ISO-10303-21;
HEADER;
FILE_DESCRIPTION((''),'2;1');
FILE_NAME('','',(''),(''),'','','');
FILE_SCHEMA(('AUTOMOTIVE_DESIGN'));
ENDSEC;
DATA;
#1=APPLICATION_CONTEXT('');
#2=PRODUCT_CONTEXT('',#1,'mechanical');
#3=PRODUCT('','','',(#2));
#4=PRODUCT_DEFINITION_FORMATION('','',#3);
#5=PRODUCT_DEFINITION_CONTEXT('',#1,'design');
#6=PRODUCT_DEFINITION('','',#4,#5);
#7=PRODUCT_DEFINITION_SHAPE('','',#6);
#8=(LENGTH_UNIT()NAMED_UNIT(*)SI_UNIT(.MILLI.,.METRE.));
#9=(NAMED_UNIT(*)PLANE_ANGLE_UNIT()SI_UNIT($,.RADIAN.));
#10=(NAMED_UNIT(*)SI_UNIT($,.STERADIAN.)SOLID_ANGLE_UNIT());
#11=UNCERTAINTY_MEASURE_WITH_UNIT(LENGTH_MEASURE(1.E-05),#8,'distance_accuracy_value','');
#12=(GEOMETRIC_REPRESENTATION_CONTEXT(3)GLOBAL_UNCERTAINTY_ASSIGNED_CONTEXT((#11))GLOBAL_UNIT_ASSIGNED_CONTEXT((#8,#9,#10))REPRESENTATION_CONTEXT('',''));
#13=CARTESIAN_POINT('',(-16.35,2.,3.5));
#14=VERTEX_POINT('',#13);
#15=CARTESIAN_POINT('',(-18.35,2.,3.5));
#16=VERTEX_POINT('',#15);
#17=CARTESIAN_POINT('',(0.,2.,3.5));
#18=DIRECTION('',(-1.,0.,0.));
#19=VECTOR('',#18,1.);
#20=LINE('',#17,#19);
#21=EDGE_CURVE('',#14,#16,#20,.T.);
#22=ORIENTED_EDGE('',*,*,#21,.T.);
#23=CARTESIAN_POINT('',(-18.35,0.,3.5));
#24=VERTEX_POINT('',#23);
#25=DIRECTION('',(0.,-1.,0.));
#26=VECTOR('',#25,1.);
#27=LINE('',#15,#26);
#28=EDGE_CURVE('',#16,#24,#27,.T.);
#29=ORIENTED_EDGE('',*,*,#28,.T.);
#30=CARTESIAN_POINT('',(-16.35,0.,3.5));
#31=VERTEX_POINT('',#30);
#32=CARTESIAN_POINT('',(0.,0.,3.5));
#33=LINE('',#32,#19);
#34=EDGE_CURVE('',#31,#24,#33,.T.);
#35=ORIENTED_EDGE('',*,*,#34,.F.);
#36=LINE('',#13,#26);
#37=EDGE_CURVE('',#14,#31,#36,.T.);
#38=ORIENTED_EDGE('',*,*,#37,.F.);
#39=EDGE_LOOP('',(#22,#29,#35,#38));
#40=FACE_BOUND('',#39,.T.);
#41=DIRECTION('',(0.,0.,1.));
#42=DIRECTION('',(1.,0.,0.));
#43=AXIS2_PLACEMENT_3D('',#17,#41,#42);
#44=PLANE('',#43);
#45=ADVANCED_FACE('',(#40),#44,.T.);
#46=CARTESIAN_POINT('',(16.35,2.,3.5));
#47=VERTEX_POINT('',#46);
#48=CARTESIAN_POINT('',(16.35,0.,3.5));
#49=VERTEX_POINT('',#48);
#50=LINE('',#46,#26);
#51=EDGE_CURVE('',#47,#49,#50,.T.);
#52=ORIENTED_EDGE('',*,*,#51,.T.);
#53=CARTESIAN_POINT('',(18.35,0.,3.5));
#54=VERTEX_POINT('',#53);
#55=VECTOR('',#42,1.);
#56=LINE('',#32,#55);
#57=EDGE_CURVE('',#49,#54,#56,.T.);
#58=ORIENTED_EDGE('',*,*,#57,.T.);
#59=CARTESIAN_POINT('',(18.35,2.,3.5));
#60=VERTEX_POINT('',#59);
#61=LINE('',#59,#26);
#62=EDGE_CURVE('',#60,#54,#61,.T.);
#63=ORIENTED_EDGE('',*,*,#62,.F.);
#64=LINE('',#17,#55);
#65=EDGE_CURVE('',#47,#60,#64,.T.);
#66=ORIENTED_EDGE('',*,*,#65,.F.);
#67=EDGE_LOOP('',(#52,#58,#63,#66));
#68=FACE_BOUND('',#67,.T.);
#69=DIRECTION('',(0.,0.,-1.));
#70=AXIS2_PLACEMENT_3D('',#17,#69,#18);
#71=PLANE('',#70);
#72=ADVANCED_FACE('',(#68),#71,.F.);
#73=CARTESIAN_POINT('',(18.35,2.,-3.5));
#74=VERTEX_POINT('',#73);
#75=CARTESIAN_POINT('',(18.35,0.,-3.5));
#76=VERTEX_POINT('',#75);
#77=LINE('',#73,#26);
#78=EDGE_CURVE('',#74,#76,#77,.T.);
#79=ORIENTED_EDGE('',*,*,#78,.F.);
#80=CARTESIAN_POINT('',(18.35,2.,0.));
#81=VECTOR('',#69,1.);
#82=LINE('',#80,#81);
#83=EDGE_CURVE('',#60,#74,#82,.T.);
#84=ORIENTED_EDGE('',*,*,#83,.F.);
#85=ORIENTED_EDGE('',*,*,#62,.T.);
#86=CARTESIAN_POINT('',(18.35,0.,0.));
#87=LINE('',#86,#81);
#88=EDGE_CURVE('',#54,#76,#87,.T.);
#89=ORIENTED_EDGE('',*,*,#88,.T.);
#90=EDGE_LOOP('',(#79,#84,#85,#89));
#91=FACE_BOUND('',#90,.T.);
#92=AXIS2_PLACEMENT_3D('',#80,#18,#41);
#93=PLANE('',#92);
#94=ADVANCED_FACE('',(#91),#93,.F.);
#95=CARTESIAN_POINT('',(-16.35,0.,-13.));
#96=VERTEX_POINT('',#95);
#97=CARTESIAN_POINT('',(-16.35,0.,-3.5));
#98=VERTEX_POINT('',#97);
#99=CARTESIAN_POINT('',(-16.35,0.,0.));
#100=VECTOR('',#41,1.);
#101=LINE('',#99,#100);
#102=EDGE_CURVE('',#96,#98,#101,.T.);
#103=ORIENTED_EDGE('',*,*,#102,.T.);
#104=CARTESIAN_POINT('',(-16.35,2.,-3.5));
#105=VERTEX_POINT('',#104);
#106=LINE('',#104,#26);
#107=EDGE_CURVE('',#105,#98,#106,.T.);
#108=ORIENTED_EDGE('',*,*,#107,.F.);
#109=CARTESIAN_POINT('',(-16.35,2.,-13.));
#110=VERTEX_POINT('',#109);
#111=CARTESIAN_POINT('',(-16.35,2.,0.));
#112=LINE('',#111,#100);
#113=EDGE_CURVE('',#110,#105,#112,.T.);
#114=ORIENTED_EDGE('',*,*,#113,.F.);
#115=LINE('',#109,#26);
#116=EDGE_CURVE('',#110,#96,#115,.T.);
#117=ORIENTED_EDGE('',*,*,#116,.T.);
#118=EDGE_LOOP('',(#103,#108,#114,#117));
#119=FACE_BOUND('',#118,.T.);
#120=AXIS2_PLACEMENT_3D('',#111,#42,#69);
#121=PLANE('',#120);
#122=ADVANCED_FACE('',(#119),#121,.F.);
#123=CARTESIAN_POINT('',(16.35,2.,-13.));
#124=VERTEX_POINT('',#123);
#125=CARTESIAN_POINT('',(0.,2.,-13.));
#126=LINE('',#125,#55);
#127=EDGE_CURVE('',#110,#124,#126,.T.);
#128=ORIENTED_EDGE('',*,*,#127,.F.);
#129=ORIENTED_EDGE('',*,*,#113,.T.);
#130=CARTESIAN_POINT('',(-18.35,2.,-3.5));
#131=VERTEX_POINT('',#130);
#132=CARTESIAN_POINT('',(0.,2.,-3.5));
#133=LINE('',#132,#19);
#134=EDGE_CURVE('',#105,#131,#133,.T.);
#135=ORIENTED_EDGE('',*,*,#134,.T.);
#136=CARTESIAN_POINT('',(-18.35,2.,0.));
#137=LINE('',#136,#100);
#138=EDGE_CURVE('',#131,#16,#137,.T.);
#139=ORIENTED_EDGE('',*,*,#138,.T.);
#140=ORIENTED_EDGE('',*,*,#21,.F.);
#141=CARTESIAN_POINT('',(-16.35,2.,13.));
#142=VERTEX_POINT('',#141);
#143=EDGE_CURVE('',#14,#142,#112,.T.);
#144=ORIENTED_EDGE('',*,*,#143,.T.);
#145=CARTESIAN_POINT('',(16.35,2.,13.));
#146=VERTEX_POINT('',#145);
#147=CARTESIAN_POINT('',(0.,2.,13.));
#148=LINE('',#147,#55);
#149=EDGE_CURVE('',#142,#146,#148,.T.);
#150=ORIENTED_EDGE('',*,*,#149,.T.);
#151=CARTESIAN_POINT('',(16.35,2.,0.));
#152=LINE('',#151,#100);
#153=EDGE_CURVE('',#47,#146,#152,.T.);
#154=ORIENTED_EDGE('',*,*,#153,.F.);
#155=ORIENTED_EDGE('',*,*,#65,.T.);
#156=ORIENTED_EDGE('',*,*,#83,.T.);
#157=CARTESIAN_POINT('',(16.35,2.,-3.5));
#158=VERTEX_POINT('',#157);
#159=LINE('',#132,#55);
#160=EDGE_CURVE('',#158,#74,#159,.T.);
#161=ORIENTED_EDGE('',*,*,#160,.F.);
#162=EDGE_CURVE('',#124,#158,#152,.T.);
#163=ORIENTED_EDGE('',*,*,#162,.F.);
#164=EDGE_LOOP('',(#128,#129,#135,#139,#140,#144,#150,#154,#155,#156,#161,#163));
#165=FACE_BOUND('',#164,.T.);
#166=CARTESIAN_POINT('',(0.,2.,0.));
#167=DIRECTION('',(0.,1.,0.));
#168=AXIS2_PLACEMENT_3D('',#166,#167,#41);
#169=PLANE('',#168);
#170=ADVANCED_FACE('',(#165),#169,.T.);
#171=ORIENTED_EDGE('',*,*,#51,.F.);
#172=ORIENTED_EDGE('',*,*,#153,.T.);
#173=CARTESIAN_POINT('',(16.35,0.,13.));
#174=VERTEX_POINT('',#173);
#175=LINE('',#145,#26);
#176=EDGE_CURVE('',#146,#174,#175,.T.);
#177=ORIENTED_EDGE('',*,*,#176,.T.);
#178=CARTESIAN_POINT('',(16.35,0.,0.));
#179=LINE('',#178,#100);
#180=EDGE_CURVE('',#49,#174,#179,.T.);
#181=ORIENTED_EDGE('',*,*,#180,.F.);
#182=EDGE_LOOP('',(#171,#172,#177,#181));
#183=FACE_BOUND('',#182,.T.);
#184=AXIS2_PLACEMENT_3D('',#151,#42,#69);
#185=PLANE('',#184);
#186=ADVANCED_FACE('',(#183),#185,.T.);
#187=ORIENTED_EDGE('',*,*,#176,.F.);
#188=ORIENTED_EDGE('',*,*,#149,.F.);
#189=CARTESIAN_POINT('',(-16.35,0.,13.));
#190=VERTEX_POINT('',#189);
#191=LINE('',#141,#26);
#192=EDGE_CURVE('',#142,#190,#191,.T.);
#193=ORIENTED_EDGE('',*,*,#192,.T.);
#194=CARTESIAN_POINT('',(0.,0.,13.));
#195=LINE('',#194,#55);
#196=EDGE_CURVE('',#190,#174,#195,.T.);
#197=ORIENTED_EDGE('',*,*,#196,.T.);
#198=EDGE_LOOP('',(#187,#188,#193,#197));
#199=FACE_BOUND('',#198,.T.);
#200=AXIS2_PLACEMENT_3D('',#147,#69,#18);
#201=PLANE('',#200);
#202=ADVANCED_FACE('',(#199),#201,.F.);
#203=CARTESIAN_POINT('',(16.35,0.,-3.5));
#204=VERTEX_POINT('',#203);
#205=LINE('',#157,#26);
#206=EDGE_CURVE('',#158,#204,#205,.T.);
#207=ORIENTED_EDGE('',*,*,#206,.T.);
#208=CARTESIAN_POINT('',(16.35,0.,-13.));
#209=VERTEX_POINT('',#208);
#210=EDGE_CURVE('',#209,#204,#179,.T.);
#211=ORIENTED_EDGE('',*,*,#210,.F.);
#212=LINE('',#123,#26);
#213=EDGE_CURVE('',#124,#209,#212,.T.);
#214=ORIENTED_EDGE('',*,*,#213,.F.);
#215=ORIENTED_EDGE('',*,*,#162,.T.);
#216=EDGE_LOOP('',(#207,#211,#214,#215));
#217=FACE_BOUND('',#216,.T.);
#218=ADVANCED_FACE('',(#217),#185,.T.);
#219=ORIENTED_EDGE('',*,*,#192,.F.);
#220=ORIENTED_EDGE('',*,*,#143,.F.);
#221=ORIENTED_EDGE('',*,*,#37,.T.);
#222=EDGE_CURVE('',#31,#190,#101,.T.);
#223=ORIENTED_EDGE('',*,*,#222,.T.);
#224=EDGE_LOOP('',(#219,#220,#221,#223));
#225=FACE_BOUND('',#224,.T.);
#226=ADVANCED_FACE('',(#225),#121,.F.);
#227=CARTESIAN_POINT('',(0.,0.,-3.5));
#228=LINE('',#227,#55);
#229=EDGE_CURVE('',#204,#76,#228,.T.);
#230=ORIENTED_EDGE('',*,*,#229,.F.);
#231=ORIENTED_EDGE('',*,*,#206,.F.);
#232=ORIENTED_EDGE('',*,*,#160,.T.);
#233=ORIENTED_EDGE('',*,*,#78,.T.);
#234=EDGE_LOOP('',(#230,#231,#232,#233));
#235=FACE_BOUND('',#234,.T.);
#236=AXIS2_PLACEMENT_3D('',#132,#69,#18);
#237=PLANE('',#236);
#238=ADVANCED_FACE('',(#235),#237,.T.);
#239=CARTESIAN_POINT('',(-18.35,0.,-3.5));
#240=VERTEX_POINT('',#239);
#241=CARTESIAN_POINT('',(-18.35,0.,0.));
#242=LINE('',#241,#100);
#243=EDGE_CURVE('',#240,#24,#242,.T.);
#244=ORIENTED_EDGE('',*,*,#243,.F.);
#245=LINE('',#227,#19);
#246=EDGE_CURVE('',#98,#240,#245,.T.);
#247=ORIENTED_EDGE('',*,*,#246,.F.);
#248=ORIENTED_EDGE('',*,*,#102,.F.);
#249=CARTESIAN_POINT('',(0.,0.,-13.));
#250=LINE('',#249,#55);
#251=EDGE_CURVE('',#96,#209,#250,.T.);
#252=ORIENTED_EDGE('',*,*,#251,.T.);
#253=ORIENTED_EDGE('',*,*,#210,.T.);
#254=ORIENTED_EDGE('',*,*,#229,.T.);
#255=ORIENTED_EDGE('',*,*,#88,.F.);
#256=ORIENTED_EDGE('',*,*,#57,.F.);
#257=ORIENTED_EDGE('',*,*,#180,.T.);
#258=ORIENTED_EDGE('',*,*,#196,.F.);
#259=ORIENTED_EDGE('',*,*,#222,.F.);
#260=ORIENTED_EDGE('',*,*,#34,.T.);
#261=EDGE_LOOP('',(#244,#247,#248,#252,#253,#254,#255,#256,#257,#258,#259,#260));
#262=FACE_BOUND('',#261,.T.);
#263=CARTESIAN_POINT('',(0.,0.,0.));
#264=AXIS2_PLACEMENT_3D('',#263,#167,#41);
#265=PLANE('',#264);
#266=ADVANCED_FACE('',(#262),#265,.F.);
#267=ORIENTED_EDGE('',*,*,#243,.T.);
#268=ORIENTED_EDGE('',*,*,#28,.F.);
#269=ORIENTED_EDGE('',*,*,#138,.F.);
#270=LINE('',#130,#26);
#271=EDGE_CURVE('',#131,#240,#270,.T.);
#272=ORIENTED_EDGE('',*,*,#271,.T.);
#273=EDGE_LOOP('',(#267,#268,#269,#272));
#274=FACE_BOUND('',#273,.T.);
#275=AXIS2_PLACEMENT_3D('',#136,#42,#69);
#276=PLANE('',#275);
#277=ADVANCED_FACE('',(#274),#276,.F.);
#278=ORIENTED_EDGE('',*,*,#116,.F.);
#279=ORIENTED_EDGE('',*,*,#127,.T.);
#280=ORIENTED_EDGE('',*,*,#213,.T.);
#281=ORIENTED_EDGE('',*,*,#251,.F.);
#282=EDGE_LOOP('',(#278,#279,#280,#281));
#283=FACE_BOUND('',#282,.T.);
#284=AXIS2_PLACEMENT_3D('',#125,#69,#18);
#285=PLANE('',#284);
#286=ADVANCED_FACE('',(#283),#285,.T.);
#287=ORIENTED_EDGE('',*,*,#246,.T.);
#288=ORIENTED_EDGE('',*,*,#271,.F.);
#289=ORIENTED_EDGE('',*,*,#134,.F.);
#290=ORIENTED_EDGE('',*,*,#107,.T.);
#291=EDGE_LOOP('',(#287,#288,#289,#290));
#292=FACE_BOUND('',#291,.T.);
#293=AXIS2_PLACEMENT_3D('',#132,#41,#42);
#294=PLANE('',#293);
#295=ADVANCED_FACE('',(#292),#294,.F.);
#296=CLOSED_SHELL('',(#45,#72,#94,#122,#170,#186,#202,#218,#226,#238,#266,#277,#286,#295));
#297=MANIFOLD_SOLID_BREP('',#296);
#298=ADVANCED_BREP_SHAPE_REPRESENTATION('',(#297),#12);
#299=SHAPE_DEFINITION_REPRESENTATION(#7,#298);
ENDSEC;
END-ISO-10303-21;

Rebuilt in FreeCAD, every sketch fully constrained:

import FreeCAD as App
import Part
import Sketcher
from FreeCAD import Vector
Q = App.Units.Quantity

doc = App.newDocument("Part")
body = doc.addObject("PartDesign::Body", "Body")

# Sketch on XZ plane
sketch1 = body.newObject("Sketcher::SketchObject", "Sketch")
sketch1.AttachmentSupport = (doc.getObject("XZ_Plane"), [""])
sketch1.MapMode = "FlatFace"
sketch1.addGeometry(Part.LineSegment(Vector(-16.4, 3.5, 0), Vector(-16.4, 13, 0)), False)
sketch1.addGeometry(Part.LineSegment(Vector(-16.4, 13, 0), Vector(16.4, 13, 0)), False)
sketch1.addGeometry(Part.LineSegment(Vector(16.4, 13, 0), Vector(16.4, 3.5, 0)), False)
sketch1.addGeometry(Part.LineSegment(Vector(16.4, 3.5, 0), Vector(18.4, 3.5, 0)), False)
sketch1.addGeometry(Part.LineSegment(Vector(18.4, 3.5, 0), Vector(18.4, -3.5, 0)), False)
sketch1.addGeometry(Part.LineSegment(Vector(18.4, -3.5, 0), Vector(16.4, -3.5, 0)), False)
sketch1.addGeometry(Part.LineSegment(Vector(16.4, -3.5, 0), Vector(16.4, -13, 0)), False)
sketch1.addGeometry(Part.LineSegment(Vector(16.4, -13, 0), Vector(-16.4, -13, 0)), False)
sketch1.addGeometry(Part.LineSegment(Vector(-16.4, -13, 0), Vector(-16.4, -3.5, 0)), False)
sketch1.addGeometry(Part.LineSegment(Vector(-16.4, -3.5, 0), Vector(-18.4, -3.5, 0)), False)
sketch1.addGeometry(Part.LineSegment(Vector(-18.4, -3.5, 0), Vector(-18.4, 3.5, 0)), False)
sketch1.addGeometry(Part.LineSegment(Vector(-18.4, 3.5, 0), Vector(-16.4, 3.5, 0)), False)
sketch1.addConstraint(Sketcher.Constraint("Coincident", 0, 2, 1, 1))
sketch1.addConstraint(Sketcher.Constraint("Coincident", 1, 2, 2, 1))
sketch1.addConstraint(Sketcher.Constraint("Coincident", 2, 2, 3, 1))
sketch1.addConstraint(Sketcher.Constraint("Coincident", 3, 2, 4, 1))
sketch1.addConstraint(Sketcher.Constraint("Coincident", 4, 2, 5, 1))
sketch1.addConstraint(Sketcher.Constraint("Coincident", 5, 2, 6, 1))
sketch1.addConstraint(Sketcher.Constraint("Coincident", 6, 2, 7, 1))
sketch1.addConstraint(Sketcher.Constraint("Coincident", 7, 2, 8, 1))
sketch1.addConstraint(Sketcher.Constraint("Coincident", 8, 2, 9, 1))
sketch1.addConstraint(Sketcher.Constraint("Coincident", 9, 2, 10, 1))
sketch1.addConstraint(Sketcher.Constraint("Coincident", 10, 2, 11, 1))
sketch1.addConstraint(Sketcher.Constraint("Coincident", 11, 2, 0, 1))
sketch1.addConstraint(Sketcher.Constraint("Vertical", 0))
sketch1.addConstraint(Sketcher.Constraint("Horizontal", 1))
sketch1.addConstraint(Sketcher.Constraint("Vertical", 2))
sketch1.addConstraint(Sketcher.Constraint("Horizontal", 3))
sketch1.addConstraint(Sketcher.Constraint("Vertical", 4))
sketch1.addConstraint(Sketcher.Constraint("Horizontal", 5))
sketch1.addConstraint(Sketcher.Constraint("Vertical", 6))
sketch1.addConstraint(Sketcher.Constraint("Horizontal", 7))
sketch1.addConstraint(Sketcher.Constraint("Vertical", 8))
sketch1.addConstraint(Sketcher.Constraint("Horizontal", 9))
sketch1.addConstraint(Sketcher.Constraint("Vertical", 10))
sketch1.addConstraint(Sketcher.Constraint("Horizontal", 11))
sketch1.addConstraint(Sketcher.Constraint("Symmetric", 0, 2, 6, 2, -1, 1))
sketch1.addConstraint(Sketcher.Constraint("Symmetric", 2, 2, 8, 2, -1, 1))
sketch1.addConstraint(Sketcher.Constraint("Symmetric", 4, 2, 10, 2, -1, 1))
sketch1.addConstraint(Sketcher.Constraint("Symmetric", 5, 2, 8, 2, -2))
sketch1.addConstraint(Sketcher.Constraint("DistanceX", 3, 1, 3, 2, Q("2 mm")))
sketch1.addConstraint(Sketcher.Constraint("DistanceY", 4, 2, 4, 1, Q("7 mm")))
sketch1.addConstraint(Sketcher.Constraint("DistanceX", 1, 1, 1, 2, Q("32.7 mm")))
sketch1.addConstraint(Sketcher.Constraint("DistanceY", 0, 1, 0, 2, Q("9.5 mm")))
pad1 = body.newObject("PartDesign::Pad", "Pad")
pad1.Profile = sketch1
pad1.Length = 2
pad1.Reversed = True

doc.recompute()
